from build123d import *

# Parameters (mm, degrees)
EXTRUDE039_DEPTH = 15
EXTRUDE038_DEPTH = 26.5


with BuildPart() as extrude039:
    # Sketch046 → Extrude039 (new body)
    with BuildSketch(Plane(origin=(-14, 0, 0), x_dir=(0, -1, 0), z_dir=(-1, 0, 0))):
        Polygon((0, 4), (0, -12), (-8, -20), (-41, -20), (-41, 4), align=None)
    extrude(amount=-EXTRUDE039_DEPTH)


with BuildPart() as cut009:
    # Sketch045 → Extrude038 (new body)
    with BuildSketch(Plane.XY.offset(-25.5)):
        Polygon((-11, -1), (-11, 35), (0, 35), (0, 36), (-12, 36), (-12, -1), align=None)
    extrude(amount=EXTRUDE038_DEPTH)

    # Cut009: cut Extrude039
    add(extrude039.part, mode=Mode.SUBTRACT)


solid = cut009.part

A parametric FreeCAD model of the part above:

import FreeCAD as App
import Part
import Sketcher
from FreeCAD import Vector


def add_polygon(sketch, points):
    """Adds a closed chain of lines whose ends are joined by coincident constraints."""
    first, n = sketch.GeometryCount, len(points)
    for a, b in zip(points, points[1:] + points[:1]):
        sketch.addGeometry(Part.LineSegment(App.Vector(*a, 0), App.Vector(*b, 0)), False)
    for i in range(n):
        sketch.addConstraint(Sketcher.Constraint("Coincident", first + i, 2, first + (i + 1) % n, 1))

doc = App.newDocument("Part")
body = doc.addObject("PartDesign::Body", "Body")

sketch1 = doc.addObject("Sketcher::SketchObject", "Sketch")
body.addObject(sketch1)
sketch1.AttachmentSupport = (doc.YZ_Plane, [""])
sketch1.MapMode = "FlatFace"
sketch1.AttachmentOffset = App.Placement(Vector(0, 0, -14), App.Rotation())
add_polygon(sketch1, [(0, -12), (0, 4), (41, 4), (41, -20), (8, -20)])
sketch1.addConstraint([
    Sketcher.Constraint("Vertical", 0),
    Sketcher.Constraint("Horizontal", 1),
    Sketcher.Constraint("Vertical", 2),
    Sketcher.Constraint("Horizontal", 3),
    Sketcher.Constraint("PointOnObject", 0, 2, -2),
    Sketcher.Constraint("DistanceX", 1, 1, 1, 2, 41.0),
    Sketcher.Constraint("DistanceX", 3, 2, 3, 1, 33.0),
    Sketcher.Constraint("DistanceY", 0, 1, 0, 2, 16.0),
    Sketcher.Constraint("DistanceY", 2, 2, 2, 1, 24.0),
    Sketcher.Constraint("DistanceY", -1, 1, 0, 2, 4.0),
])
pad1 = doc.addObject("PartDesign::Pad", "Pad")
body.addObject(pad1)
pad1.Profile = sketch1
pad1.Length = 15
body2 = doc.addObject("PartDesign::Body", "Body001")

sketch2 = doc.addObject("Sketcher::SketchObject", "Sketch001")
body2.addObject(sketch2)
sketch2.AttachmentSupport = (doc.getObject("XY_Plane001"), [""])
sketch2.MapMode = "FlatFace"
sketch2.AttachmentOffset = App.Placement(Vector(0, 0, -25.5), App.Rotation())
add_polygon(sketch2, [(-11, -1), (-11, 35), (0, 35), (0, 36), (-12, 36), (-12, -1)])
sketch2.addConstraint([
    Sketcher.Constraint("Vertical", 0),
    Sketcher.Constraint("Horizontal", 1),
    Sketcher.Constraint("Vertical", 2),
    Sketcher.Constraint("Horizontal", 3),
    Sketcher.Constraint("Vertical", 4),
    Sketcher.Constraint("Horizontal", 5),
    Sketcher.Constraint("PointOnObject", 1, 2, -2),
    Sketcher.Constraint("Equal", 5, 2),
    Sketcher.Constraint("DistanceX", 1, 1, 1, 2, 11.0),
    Sketcher.Constraint("DistanceX", 3, 2, 3, 1, 12.0),
    Sketcher.Constraint("DistanceY", 0, 1, 0, 2, 36.0),
    Sketcher.Constraint("DistanceY", -1, 1, 0, 2, 35.0),
])
pad2 = doc.addObject("PartDesign::Pad", "Pad001")
body2.addObject(pad2)
pad2.Profile = sketch2
pad2.Length = 26.5
doc.recompute()

boolean = doc.addObject("PartDesign::Boolean", "Boolean")
body2.addObject(boolean)
boolean.Type = "Cut"
boolean.addObjects([body])

doc.recompute()
